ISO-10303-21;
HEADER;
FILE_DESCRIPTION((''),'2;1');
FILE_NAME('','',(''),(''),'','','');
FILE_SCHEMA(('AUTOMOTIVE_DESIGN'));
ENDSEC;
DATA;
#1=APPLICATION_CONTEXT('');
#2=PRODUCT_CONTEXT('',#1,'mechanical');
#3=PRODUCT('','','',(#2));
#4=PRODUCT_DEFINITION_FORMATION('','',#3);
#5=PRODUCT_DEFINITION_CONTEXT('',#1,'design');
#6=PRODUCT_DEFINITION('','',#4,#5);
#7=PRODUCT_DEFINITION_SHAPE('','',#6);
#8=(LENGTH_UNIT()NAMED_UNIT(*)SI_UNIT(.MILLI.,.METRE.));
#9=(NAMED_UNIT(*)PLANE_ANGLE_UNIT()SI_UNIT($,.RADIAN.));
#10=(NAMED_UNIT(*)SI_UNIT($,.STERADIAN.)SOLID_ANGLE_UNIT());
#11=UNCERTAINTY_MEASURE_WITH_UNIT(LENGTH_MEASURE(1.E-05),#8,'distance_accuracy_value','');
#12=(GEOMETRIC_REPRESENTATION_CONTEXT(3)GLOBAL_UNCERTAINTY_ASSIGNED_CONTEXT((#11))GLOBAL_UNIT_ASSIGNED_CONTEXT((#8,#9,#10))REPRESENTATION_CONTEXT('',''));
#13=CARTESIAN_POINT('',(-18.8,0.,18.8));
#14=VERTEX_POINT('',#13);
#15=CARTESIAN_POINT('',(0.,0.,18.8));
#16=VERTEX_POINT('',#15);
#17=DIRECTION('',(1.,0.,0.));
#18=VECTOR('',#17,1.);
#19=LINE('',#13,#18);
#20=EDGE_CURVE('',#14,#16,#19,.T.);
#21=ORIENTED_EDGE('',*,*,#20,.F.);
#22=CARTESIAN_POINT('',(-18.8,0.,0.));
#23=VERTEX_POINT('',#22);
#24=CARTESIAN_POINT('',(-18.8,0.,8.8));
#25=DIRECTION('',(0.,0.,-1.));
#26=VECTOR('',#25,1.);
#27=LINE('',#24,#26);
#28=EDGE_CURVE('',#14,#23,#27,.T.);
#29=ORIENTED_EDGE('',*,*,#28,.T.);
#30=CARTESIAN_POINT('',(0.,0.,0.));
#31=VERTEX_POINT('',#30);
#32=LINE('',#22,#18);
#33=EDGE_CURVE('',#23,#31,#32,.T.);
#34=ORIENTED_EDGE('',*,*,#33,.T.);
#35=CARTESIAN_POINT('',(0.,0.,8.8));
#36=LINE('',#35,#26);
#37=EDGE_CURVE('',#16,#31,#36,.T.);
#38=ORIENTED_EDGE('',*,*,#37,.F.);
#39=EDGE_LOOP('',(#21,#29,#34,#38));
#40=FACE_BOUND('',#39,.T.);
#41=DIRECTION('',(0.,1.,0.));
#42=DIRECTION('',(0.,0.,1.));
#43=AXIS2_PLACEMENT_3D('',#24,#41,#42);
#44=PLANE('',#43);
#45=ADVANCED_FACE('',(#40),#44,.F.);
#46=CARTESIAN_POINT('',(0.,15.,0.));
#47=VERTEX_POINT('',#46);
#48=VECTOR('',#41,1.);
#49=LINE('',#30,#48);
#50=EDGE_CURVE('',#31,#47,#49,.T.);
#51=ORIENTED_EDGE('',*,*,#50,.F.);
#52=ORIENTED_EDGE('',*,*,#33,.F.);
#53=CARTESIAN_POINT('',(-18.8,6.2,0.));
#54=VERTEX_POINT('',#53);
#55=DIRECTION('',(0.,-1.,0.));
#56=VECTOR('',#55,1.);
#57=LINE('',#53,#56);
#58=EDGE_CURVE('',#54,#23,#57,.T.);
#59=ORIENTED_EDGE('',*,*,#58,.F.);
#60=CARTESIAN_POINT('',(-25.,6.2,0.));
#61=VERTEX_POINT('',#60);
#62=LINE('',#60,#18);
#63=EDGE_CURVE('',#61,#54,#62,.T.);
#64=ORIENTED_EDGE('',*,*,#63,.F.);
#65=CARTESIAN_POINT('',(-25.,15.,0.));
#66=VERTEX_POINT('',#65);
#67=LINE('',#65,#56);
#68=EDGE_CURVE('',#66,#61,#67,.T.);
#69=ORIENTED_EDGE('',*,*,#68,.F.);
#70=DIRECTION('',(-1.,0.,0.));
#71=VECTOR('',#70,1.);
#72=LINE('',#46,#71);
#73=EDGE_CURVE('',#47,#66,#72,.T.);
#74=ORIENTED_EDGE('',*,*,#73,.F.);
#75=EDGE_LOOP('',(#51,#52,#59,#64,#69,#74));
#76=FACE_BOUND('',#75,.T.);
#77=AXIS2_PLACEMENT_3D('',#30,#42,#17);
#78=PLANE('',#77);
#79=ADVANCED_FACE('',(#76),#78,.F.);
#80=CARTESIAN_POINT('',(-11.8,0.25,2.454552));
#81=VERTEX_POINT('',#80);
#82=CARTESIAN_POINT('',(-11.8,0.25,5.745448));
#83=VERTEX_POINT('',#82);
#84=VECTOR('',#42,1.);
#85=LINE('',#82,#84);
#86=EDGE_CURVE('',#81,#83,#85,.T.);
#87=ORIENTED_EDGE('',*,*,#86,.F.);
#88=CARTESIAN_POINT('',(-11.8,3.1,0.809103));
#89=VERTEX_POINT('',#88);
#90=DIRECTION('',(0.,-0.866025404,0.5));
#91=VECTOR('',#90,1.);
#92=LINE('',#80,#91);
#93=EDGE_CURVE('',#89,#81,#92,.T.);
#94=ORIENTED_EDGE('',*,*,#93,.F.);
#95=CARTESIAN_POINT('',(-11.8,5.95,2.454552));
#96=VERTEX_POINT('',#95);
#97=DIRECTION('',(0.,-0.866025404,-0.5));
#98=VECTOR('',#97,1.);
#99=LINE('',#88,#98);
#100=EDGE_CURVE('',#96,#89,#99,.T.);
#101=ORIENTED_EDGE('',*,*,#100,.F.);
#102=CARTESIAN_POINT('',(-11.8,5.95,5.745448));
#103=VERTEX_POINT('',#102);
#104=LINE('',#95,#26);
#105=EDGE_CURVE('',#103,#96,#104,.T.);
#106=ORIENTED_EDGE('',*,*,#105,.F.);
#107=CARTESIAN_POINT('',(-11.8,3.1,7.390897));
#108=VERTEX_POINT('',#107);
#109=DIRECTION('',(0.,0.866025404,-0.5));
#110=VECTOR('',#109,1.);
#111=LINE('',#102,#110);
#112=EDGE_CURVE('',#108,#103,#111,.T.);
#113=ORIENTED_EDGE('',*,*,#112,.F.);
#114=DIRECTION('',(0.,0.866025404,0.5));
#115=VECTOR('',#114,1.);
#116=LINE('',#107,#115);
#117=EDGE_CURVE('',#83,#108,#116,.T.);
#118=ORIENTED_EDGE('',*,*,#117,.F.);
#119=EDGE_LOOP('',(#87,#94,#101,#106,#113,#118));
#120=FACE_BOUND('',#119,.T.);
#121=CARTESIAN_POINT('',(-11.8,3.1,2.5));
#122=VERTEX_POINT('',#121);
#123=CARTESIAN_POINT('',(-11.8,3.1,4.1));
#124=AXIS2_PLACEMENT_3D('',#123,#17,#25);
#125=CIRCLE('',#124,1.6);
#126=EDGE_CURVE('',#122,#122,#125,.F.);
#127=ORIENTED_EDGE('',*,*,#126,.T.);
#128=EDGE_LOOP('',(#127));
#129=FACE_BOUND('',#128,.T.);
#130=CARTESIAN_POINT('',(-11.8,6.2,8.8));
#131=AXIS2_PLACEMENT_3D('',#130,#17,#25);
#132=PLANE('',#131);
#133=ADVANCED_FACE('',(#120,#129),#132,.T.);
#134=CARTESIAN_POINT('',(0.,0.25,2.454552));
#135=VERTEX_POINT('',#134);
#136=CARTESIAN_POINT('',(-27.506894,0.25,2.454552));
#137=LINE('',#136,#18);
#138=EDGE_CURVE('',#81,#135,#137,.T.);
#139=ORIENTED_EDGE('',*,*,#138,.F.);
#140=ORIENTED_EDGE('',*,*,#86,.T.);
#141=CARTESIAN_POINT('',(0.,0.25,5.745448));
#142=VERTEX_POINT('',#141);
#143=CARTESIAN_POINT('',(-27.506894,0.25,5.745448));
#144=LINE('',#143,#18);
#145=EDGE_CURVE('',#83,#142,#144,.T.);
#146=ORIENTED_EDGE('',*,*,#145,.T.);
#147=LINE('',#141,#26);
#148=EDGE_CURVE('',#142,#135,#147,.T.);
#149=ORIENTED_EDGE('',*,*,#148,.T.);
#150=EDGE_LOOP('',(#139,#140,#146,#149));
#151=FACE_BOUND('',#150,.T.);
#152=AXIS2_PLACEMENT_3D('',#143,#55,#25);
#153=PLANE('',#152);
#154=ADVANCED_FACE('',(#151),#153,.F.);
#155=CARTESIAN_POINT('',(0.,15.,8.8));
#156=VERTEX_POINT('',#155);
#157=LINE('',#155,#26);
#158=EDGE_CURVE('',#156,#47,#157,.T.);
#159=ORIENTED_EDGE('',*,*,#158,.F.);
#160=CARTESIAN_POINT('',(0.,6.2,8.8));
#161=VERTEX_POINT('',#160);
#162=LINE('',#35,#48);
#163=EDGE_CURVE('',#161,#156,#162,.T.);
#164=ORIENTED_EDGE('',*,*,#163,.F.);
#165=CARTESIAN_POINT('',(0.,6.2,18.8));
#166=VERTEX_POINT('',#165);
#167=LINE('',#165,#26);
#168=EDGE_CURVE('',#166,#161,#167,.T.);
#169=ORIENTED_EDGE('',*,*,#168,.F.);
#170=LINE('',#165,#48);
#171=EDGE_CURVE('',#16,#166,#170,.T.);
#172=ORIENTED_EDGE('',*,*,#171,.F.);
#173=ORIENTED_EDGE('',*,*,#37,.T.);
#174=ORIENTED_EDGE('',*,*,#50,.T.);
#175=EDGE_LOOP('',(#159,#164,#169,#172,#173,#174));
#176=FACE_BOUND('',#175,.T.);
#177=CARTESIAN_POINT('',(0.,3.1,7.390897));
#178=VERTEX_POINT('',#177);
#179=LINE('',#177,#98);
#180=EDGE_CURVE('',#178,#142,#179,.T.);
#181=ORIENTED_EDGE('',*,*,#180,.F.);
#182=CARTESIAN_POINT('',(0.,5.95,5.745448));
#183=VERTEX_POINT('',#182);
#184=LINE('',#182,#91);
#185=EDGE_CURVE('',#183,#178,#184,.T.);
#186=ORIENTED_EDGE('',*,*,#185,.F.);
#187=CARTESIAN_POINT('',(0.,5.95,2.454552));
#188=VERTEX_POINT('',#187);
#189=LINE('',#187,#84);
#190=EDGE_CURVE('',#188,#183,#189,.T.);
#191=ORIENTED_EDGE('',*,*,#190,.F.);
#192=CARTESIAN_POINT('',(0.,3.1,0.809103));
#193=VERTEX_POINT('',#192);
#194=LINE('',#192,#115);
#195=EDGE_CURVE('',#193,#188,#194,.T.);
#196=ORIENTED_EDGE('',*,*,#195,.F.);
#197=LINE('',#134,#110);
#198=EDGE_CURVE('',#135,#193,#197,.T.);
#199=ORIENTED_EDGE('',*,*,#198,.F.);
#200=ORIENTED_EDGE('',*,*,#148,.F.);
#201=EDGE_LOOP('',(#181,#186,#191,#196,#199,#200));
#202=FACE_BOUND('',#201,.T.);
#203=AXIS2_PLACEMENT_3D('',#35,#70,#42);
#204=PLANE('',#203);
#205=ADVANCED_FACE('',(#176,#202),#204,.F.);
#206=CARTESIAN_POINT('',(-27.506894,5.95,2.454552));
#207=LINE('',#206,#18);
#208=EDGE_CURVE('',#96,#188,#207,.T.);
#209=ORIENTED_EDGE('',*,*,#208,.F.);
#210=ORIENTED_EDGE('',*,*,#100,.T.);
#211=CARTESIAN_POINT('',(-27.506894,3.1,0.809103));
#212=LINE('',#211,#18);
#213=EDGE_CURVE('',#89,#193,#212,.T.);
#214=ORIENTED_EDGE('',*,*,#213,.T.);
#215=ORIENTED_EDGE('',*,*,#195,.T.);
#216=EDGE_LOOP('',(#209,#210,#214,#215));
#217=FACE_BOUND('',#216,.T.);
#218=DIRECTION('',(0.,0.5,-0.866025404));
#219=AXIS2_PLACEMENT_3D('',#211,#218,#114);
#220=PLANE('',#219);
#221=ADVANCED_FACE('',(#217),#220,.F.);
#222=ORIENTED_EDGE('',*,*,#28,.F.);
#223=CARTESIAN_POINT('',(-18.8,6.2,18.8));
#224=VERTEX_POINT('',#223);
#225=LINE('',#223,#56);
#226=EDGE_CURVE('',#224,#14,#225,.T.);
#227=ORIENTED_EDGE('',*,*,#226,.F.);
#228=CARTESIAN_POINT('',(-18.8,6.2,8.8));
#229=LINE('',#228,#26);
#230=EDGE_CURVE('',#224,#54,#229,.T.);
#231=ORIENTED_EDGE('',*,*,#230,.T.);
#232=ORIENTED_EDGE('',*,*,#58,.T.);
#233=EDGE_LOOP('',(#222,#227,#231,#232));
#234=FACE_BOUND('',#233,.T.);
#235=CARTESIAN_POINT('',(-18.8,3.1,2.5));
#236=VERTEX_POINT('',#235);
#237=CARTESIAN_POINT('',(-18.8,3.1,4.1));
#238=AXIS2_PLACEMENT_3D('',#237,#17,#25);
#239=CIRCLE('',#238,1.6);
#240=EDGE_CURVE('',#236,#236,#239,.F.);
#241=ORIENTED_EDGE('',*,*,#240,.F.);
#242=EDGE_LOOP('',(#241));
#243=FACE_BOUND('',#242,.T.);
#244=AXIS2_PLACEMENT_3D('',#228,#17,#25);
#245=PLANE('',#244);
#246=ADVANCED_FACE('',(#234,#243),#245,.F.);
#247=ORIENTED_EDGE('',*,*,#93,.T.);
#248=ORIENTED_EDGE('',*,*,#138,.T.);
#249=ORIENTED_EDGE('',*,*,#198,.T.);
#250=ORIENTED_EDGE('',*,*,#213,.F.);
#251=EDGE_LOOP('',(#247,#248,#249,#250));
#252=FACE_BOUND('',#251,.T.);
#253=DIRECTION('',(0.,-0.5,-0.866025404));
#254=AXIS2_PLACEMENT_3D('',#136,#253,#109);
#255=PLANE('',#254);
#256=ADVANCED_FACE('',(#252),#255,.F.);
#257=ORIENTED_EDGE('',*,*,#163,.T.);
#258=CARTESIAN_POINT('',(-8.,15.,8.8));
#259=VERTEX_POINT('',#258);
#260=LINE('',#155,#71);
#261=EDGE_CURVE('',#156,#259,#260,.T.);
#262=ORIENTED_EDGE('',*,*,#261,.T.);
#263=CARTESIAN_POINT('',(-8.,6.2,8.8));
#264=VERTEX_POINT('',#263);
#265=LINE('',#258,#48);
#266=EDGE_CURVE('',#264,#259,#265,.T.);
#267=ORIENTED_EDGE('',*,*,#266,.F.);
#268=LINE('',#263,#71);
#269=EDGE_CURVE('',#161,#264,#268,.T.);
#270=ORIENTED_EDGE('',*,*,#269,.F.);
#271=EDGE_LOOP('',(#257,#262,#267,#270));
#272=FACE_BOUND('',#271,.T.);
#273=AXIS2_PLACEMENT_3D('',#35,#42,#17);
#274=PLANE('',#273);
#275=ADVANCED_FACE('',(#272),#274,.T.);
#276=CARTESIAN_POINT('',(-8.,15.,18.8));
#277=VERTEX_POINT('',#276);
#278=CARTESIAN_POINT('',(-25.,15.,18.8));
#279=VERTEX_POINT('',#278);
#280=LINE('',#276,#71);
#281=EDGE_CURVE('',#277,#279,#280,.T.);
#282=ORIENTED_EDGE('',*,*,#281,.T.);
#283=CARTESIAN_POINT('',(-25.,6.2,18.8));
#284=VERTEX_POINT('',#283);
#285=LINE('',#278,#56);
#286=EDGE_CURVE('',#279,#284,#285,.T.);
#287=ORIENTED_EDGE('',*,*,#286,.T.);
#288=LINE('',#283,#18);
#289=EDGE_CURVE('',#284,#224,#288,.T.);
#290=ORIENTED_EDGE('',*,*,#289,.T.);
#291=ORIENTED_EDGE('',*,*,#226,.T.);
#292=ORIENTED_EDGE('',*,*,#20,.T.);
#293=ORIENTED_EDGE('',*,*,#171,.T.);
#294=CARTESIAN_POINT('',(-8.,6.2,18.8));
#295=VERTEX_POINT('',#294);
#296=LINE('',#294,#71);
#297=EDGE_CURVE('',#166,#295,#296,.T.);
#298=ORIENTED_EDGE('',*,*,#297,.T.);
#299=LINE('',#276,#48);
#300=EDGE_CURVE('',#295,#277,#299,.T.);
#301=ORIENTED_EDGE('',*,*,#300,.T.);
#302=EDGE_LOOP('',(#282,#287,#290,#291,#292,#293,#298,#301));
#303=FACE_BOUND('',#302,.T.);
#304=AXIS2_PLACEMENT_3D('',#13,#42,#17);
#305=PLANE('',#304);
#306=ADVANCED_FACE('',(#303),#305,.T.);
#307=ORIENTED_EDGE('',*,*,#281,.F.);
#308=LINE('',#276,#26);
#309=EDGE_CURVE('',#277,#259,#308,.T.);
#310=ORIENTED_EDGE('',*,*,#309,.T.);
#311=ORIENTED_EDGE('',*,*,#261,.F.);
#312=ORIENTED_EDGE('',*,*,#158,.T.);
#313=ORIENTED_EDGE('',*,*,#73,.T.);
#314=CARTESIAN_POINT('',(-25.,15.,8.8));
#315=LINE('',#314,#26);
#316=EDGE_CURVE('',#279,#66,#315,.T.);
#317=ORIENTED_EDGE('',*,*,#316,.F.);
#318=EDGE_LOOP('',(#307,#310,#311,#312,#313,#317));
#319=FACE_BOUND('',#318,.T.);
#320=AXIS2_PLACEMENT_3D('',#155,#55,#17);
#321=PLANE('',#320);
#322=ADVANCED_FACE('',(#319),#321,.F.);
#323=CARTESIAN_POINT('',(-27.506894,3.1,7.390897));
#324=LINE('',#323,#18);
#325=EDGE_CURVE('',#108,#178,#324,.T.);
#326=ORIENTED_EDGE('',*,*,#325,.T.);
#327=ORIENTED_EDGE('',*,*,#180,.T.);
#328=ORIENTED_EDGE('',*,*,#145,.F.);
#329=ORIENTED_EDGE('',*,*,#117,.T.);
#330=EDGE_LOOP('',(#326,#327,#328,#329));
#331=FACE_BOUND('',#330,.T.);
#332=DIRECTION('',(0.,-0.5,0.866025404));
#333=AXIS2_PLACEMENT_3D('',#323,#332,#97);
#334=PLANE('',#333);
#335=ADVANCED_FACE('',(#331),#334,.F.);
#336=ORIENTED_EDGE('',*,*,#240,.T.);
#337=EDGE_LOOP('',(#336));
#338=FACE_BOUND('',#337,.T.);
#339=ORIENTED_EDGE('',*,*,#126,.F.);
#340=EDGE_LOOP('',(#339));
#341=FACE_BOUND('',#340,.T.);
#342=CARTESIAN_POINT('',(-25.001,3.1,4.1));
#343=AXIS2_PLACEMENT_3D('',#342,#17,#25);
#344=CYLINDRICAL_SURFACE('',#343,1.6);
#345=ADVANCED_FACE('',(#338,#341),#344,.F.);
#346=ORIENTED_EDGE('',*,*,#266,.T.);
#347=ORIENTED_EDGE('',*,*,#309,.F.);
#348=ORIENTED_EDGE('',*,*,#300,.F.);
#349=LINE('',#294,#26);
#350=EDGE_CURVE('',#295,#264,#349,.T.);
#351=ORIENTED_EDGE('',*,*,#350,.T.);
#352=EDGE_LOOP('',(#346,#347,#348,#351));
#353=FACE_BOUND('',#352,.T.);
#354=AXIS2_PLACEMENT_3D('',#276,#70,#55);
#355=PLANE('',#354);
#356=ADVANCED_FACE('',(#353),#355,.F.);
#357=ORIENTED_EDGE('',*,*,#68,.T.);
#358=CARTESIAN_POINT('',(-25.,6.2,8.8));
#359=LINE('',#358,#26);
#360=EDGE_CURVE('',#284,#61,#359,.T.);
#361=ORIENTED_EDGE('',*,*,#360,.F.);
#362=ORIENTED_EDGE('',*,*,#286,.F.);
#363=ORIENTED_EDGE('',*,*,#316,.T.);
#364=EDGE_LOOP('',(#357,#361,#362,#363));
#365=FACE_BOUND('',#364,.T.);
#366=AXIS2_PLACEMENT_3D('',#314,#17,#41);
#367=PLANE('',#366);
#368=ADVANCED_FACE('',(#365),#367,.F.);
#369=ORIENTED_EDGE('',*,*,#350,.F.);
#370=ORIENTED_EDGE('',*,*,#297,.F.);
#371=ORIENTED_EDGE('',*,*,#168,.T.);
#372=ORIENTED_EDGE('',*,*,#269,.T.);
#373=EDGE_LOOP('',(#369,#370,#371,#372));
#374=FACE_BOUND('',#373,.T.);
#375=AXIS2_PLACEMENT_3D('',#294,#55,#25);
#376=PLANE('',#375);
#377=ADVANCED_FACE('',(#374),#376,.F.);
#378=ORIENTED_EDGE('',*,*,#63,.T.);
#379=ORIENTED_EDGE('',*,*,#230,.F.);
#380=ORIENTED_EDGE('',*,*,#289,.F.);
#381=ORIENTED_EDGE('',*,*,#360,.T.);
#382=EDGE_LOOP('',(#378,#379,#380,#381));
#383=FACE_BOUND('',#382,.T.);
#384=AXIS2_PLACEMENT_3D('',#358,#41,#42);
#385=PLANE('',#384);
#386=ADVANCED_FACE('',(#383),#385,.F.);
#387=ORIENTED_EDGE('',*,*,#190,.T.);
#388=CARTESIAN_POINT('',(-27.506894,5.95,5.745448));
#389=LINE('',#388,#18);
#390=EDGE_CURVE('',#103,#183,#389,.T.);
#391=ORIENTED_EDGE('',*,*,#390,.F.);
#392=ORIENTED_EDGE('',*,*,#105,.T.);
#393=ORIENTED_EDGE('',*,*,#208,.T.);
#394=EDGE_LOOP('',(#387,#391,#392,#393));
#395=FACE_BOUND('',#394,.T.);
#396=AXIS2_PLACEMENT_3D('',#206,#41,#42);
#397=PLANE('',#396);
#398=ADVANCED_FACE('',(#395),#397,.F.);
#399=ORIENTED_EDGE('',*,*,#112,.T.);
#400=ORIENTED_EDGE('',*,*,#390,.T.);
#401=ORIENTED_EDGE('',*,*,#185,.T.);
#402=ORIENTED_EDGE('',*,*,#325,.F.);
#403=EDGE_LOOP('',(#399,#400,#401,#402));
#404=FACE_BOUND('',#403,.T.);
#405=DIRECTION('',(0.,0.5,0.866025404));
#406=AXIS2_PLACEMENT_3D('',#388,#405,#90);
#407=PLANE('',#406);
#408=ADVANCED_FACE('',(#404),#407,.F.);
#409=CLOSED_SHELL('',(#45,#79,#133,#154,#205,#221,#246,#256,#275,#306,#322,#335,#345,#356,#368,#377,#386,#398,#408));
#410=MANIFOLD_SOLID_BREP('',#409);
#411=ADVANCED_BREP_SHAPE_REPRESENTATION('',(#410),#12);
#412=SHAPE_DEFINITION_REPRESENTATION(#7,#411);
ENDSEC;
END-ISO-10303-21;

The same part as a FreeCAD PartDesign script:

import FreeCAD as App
import Part
import Sketcher
from FreeCAD import Vector
Q = App.Units.Quantity


def add_polygon(sketch, points):
    """Adds a closed chain of lines whose ends are joined by coincident constraints."""
    first, n = sketch.GeometryCount, len(points)
    for a, b in zip(points, points[1:] + points[:1]):
        sketch.addGeometry(Part.LineSegment(App.Vector(*a, 0), App.Vector(*b, 0)), False)
    for i in range(n):
        sketch.addConstraint(Sketcher.Constraint("Coincident", first + i, 2, first + (i + 1) % n, 1))

doc = App.newDocument("Part")
body = doc.addObject("PartDesign::Body", "Body")

# Sketch on XY plane
sketch1 = body.newObject("Sketcher::SketchObject", "Sketch")
sketch1.AttachmentSupport = (doc.getObject("XY_Plane"), [""])
sketch1.MapMode = "FlatFace"
add_polygon(sketch1, [(0, 0), (0, 15), (-25, 15), (-25, 6.2), (-18.8, 6.2), (-18.8, 0)])  # lines 0-5
sketch1.addConstraint([
    Sketcher.Constraint("Vertical", 0),
    Sketcher.Constraint("Horizontal", 1),
    Sketcher.Constraint("Vertical", 2),
    Sketcher.Constraint("Horizontal", 3),
    Sketcher.Constraint("Vertical", 4),
    Sketcher.Constraint("Horizontal", 5),
    Sketcher.Constraint("Coincident", 5, 2, -1, 1),
    Sketcher.Constraint("Equal", 3, 4),
    Sketcher.Constraint("DistanceX", 1, 2, 1, 1, Q("25 mm")),
    Sketcher.Constraint("DistanceY", 0, 1, 0, 2, Q("15 mm")),
    Sketcher.Constraint("DistanceX", 3, 1, 3, 2, Q("6.2 mm")),
])
pad1 = body.newObject("PartDesign::Pad", "Pad")
pad1.Profile = sketch1
pad1.Length = 8.8

# Sketch on XY plane
sketch2 = body.newObject("Sketcher::SketchObject", "Sketch001")
sketch2.AttachmentSupport = (doc.getObject("XY_Plane"), [""])
sketch2.MapMode = "FlatFace"
sketch2.AttachmentOffset = App.Placement(Vector(0, 0, 8.8), App.Rotation())
add_polygon(sketch2, [(-8, 6.2), (-8, 15), (-25, 15), (-25, 6.2), (-18.8, 6.2), (-18.8, 0), (0, 0), (0, 6.2)])  # lines 0-7
sketch2.addConstraint([
    Sketcher.Constraint("Vertical", 0),
    Sketcher.Constraint("Horizontal", 1),
    Sketcher.Constraint("Vertical", 2),
    Sketcher.Constraint("Horizontal", 3),
    Sketcher.Constraint("Vertical", 4),
    Sketcher.Constraint("Horizontal", 5),
    Sketcher.Constraint("Vertical", 6),
    Sketcher.Constraint("Horizontal", 7),
    Sketcher.Constraint("Coincident", 5, 2, -1, 1),
    Sketcher.Constraint("Horizontal", 3, 2, 6, 2),
    Sketcher.Constraint("Equal", 3, 4),
    Sketcher.Constraint("DistanceX", 1, 2, 1, 1, Q("17 mm")),
    Sketcher.Constraint("DistanceX", 7, 2, 7, 1, Q("8 mm")),
    Sketcher.Constraint("DistanceX", 3, 1, 3, 2, Q("6.2 mm")),
    Sketcher.Constraint("DistanceY", 0, 1, 0, 2, Q("8.8 mm")),
])
pad2 = body.newObject("PartDesign::Pad", "Pad001")
pad2.Profile = sketch2
pad2.Length = 10

# Sketch on YZ plane
sketch3 = body.newObject("Sketcher::SketchObject", "Sketch002")
sketch3.AttachmentSupport = (doc.getObject("YZ_Plane"), [""])
sketch3.MapMode = "FlatFace"
sketch3.addGeometry(Part.Circle(Vector(3.1, 4.1, 0), Vector(0, 0, 1), 1.6), False)
sketch3.addConstraint([
    Sketcher.Constraint("Diameter", 0, Q("3.2 mm")),
    Sketcher.Constraint("DistanceX", -1, 1, 0, 3, Q("3.1 mm")),
    Sketcher.Constraint("DistanceY", -1, 1, 0, 3, Q("4.1 mm")),
])
pocket1 = body.newObject("PartDesign::Pocket", "Pocket")
pocket1.Profile = sketch3
pocket1.Type = "UpToFirst"

# Sketch on YZ plane
sketch4 = body.newObject("Sketcher::SketchObject", "Sketch003")
sketch4.AttachmentSupport = (doc.getObject("YZ_Plane"), [""])
sketch4.MapMode = "FlatFace"
add_polygon(sketch4, [(3.1, 0.809103), (5.95, 2.454552), (5.95, 5.745448), (3.1, 7.390897), (0.25, 5.745448), (0.25, 2.454552)])  # lines 0-5
sketch4.addConstraint([
    Sketcher.Constraint("Vertical", 1),
    Sketcher.Constraint("Vertical", 4),
    Sketcher.Constraint("Parallel", 0, 3),
    Sketcher.Constraint("Parallel", 2, 5),
    Sketcher.Constraint("Horizontal", 1, 2, 3, 2),
    Sketcher.Constraint("Horizontal", 0, 2, 4, 2),
    Sketcher.Constraint("Vertical", 2, 2, 5, 2),
    Sketcher.Constraint("Angle", 0, Q("30 deg")),
    Sketcher.Constraint("DistanceX", -1, 1, 2, 2, Q("3.1 mm")),
    Sketcher.Constraint("DistanceX", 3, 2, 1, 2, Q("5.7 mm")),
    Sketcher.Constraint("DistanceY", 1, 1, 1, 2, Q("3.290897 mm")),
    Sketcher.Constraint("DistanceY", -1, 1, 0, 2, Q("2.454552 mm")),
])
pocket2 = body.newObject("PartDesign::Pocket", "Pocket001")
pocket2.Profile = sketch4
pocket2.Length = 11.8

doc.recompute()
